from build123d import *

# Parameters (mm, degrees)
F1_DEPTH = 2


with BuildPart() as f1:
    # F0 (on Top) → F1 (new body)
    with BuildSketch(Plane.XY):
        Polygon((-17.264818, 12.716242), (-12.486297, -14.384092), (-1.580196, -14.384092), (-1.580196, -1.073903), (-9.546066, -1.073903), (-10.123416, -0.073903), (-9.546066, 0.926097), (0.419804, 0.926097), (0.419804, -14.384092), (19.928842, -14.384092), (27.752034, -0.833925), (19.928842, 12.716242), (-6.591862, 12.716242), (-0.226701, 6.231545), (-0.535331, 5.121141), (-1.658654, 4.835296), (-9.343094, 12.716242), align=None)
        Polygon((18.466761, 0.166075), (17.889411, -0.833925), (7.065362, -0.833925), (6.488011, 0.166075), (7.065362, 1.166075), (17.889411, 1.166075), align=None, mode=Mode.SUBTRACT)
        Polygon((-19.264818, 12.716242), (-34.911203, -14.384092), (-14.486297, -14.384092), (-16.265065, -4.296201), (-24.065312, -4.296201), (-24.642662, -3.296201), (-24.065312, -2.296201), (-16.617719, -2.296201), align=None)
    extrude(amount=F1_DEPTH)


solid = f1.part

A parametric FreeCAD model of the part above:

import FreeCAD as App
import Part
import Sketcher
Q = App.Units.Quantity

doc = App.newDocument("Part")
params = doc.addObject("Spreadsheet::Sheet", "Params")
for row, (alias, value) in enumerate([
    ("pad1_length", "2 mm"),
], start=1):
    params.set(f"A{row}", alias)
    params.set(f"B{row}", "=" + value)
    params.setAlias(f"B{row}", alias)

body = doc.addObject("PartDesign::Body", "Body")
body.AllowCompound = True

# Sketch on XY plane
sketch1 = body.newObject("Sketcher::SketchObject", "Sketch")
sketch1.AttachmentSupport = (doc.getObject("XY_Plane"), [""])
sketch1.MapMode = "FlatFace"
sketch1.addGeometry([
    Part.LineSegment(App.Vector(-17.3, 12.7, 0), App.Vector(-12.5, -14.4, 0)),  # 0
    Part.LineSegment(App.Vector(-12.5, -14.4, 0), App.Vector(-1.6, -14.4, 0)),  # 1
    Part.LineSegment(App.Vector(-1.6, -14.4, 0), App.Vector(-1.6, -1.1, 0)),  # 2
    Part.LineSegment(App.Vector(-1.6, -1.1, 0), App.Vector(-9.5, -1.1, 0)),  # 3
    Part.LineSegment(App.Vector(-9.5, -1.1, 0), App.Vector(-10.1, -0.1, 0)),  # 4
    Part.LineSegment(App.Vector(-10.1, -0.1, 0), App.Vector(-9.5, 0.9, 0)),  # 5
    Part.LineSegment(App.Vector(-9.5, 0.9, 0), App.Vector(0.4, 0.9, 0)),  # 6
    Part.LineSegment(App.Vector(0.4, 0.9, 0), App.Vector(0.4, -14.4, 0)),  # 7
    Part.LineSegment(App.Vector(0.4, -14.4, 0), App.Vector(19.9, -14.4, 0)),  # 8
    Part.LineSegment(App.Vector(19.9, -14.4, 0), App.Vector(27.8, -0.8, 0)),  # 9
    Part.LineSegment(App.Vector(27.8, -0.8, 0), App.Vector(19.9, 12.7, 0)),  # 10
    Part.LineSegment(App.Vector(19.9, 12.7, 0), App.Vector(-6.6, 12.7, 0)),  # 11
    Part.LineSegment(App.Vector(-6.6, 12.7, 0), App.Vector(-0.2, 6.2, 0)),  # 12
    Part.LineSegment(App.Vector(-0.2, 6.2, 0), App.Vector(-0.5, 5.1, 0)),  # 13
    Part.LineSegment(App.Vector(-0.5, 5.1, 0), App.Vector(-1.7, 4.8, 0)),  # 14
    Part.LineSegment(App.Vector(-1.7, 4.8, 0), App.Vector(-9.3, 12.7, 0)),  # 15
    Part.LineSegment(App.Vector(-9.3, 12.7, 0), App.Vector(-17.3, 12.7, 0)),  # 16
    Part.LineSegment(App.Vector(17.9, 1.2, 0), App.Vector(18.5, 0.2, 0)),  # 17
    Part.LineSegment(App.Vector(18.5, 0.2, 0), App.Vector(17.9, -0.8, 0)),  # 18
    Part.LineSegment(App.Vector(17.9, -0.8, 0), App.Vector(7.1, -0.8, 0)),  # 19
    Part.LineSegment(App.Vector(7.1, -0.8, 0), App.Vector(6.5, 0.2, 0)),  # 20
    Part.LineSegment(App.Vector(6.5, 0.2, 0), App.Vector(7.1, 1.2, 0)),  # 21
    Part.LineSegment(App.Vector(7.1, 1.2, 0), App.Vector(17.9, 1.2, 0)),  # 22
    Part.LineSegment(App.Vector(-19.3, 12.7, 0), App.Vector(-34.9, -14.4, 0)),  # 23
    Part.LineSegment(App.Vector(-34.9, -14.4, 0), App.Vector(-14.5, -14.4, 0)),  # 24
    Part.LineSegment(App.Vector(-14.5, -14.4, 0), App.Vector(-16.3, -4.3, 0)),  # 25
    Part.LineSegment(App.Vector(-16.3, -4.3, 0), App.Vector(-24.1, -4.3, 0)),  # 26
    Part.LineSegment(App.Vector(-24.1, -4.3, 0), App.Vector(-24.6, -3.3, 0)),  # 27
    Part.LineSegment(App.Vector(-24.6, -3.3, 0), App.Vector(-24.1, -2.3, 0)),  # 28
    Part.LineSegment(App.Vector(-24.1, -2.3, 0), App.Vector(-16.6, -2.3, 0)),  # 29
    Part.LineSegment(App.Vector(-16.6, -2.3, 0), App.Vector(-19.3, 12.7, 0)),  # 30
], False)
sketch1.addConstraint([
    Sketcher.Constraint("Coincident", 0, 2, 1, 1),
    Sketcher.Constraint("Coincident", 1, 2, 2, 1),
    Sketcher.Constraint("Coincident", 2, 2, 3, 1),
    Sketcher.Constraint("Coincident", 3, 2, 4, 1),
    Sketcher.Constraint("Coincident", 4, 2, 5, 1),
    Sketcher.Constraint("Coincident", 5, 2, 6, 1),
    Sketcher.Constraint("Coincident", 6, 2, 7, 1),
    Sketcher.Constraint("Coincident", 7, 2, 8, 1),
    Sketcher.Constraint("Coincident", 8, 2, 9, 1),
    Sketcher.Constraint("Coincident", 9, 2, 10, 1),
    Sketcher.Constraint("Coincident", 10, 2, 11, 1),
    Sketcher.Constraint("Coincident", 11, 2, 12, 1),
    Sketcher.Constraint("Coincident", 12, 2, 13, 1),
    Sketcher.Constraint("Coincident", 13, 2, 14, 1),
    Sketcher.Constraint("Coincident", 14, 2, 15, 1),
    Sketcher.Constraint("Coincident", 15, 2, 16, 1),
    Sketcher.Constraint("Coincident", 16, 2, 0, 1),
    Sketcher.Constraint("Coincident", 17, 2, 18, 1),
    Sketcher.Constraint("Coincident", 18, 2, 19, 1),
    Sketcher.Constraint("Coincident", 19, 2, 20, 1),
    Sketcher.Constraint("Coincident", 20, 2, 21, 1),
    Sketcher.Constraint("Coincident", 21, 2, 22, 1),
    Sketcher.Constraint("Coincident", 22, 2, 17, 1),
    Sketcher.Constraint("Coincident", 23, 2, 24, 1),
    Sketcher.Constraint("Coincident", 24, 2, 25, 1),
    Sketcher.Constraint("Coincident", 25, 2, 26, 1),
    Sketcher.Constraint("Coincident", 26, 2, 27, 1),
    Sketcher.Constraint("Coincident", 27, 2, 28, 1),
    Sketcher.Constraint("Coincident", 28, 2, 29, 1),
    Sketcher.Constraint("Coincident", 29, 2, 30, 1),
    Sketcher.Constraint("Coincident", 30, 2, 23, 1),
    Sketcher.Constraint("Horizontal", 1),
    Sketcher.Constraint("Vertical", 2),
    Sketcher.Constraint("Horizontal", 3),
    Sketcher.Constraint("Horizontal", 6),
    Sketcher.Constraint("Vertical", 7),
    Sketcher.Constraint("Horizontal", 8),
    Sketcher.Constraint("Horizontal", 11),
    Sketcher.Constraint("Horizontal", 16),
    Sketcher.Constraint("Horizontal", 19),
    Sketcher.Constraint("Horizontal", 22),
    Sketcher.Constraint("Horizontal", 24),
    Sketcher.Constraint("Horizontal", 26),
    Sketcher.Constraint("Horizontal", 29),
    Sketcher.Constraint("Parallel", 5, 9),
    Sketcher.Constraint("Parallel", 4, 10),
    Sketcher.Constraint("Parallel", 10, 17),
    Sketcher.Constraint("Parallel", 9, 18),
    Sketcher.Constraint("Parallel", 17, 20),
    Sketcher.Constraint("Parallel", 18, 21),
    Sketcher.Constraint("Parallel", 21, 23),
    Sketcher.Constraint("Parallel", 0, 25),
    Sketcher.Constraint("Parallel", 20, 27),
    Sketcher.Constraint("Parallel", 23, 28),
    Sketcher.Constraint("Parallel", 25, 30),
    Sketcher.Constraint("Horizontal", 1, 2, 7, 2),
    Sketcher.Constraint("Horizontal", 11, 2, 15, 2),
    Sketcher.Constraint("Horizontal", 9, 2, 18, 2),
    Sketcher.Constraint("Horizontal", 17, 2, 20, 2),
    Sketcher.Constraint("Horizontal", 8, 2, 23, 2),
    Sketcher.Constraint("Horizontal", 16, 2, 30, 2),
    Sketcher.Constraint("Vertical", 3, 2, 5, 2),
    Sketcher.Constraint("Vertical", 8, 2, 10, 2),
    Sketcher.Constraint("Vertical", 19, 2, 21, 2),
    Sketcher.Constraint("Vertical", 18, 2, 22, 2),
    Sketcher.Constraint("Vertical", 26, 2, 28, 2),
    Sketcher.Constraint("Equal", 5, 17),
    Sketcher.Constraint("Equal", 21, 27),
    Sketcher.Constraint("Angle", 0, Q("-79.999998 deg")),
    Sketcher.Constraint("Angle", 4, Q("119.999988 deg")),
    Sketcher.Constraint("DistanceY", 3, 2, 4, 2, 1.0),
    Sketcher.Constraint("DistanceX", 2, 2, 6, 2, 2.0),
    Sketcher.Constraint("DistanceX", 24, 2, 0, 2, 2.0),
    Sketcher.Constraint("DistanceX", 30, 2, 16, 2, 2.0),
    Sketcher.Constraint("DistanceX", 1, 1, 1, 2, 10.906101),
    Sketcher.Constraint("DistanceX", 25, 2, 3, 2, 6.718999),
    Sketcher.Constraint("Distance", 0, 27.5184),
    Sketcher.Constraint("DistanceX", 3, 2, 3, 1, 7.96587),
    Sketcher.Constraint("DistanceX", 8, 1, 8, 2, 19.509038),
    Sketcher.Constraint("DistanceX", 19, 2, 19, 1, 10.824049),
    Sketcher.Constraint("DistanceY", 2, 1, 2, 2, 13.310189),
    Sketcher.Constraint("DistanceX", 12, 2, -1, 1, 0.226701),
    Sketcher.Constraint("DistanceY", 25, 2, -1, 1, 4.296201),
    Sketcher.Constraint("DistanceY", 13, 2, 11, 2, 7.595101),
    Sketcher.Constraint("DistanceY", 6, 2, 14, 2, 3.909199),
    Sketcher.Constraint("Distance", 14, 1.159121),
    Sketcher.Constraint("DistanceX", 11, 2, 11, 1, 26.520704),
    Sketcher.Constraint("DistanceX", 16, 2, 16, 1, 7.921724),
    Sketcher.Constraint("DistanceX", 26, 2, 26, 1, 7.800247),
    Sketcher.Constraint("DistanceX", -1, 1, 8, 2, 19.928842),
    Sketcher.Constraint("DistanceX", 13, 2, -1, 1, 0.535331),
    Sketcher.Constraint("DistanceX", -1, 1, 17, 2, 18.466761),
    Sketcher.Constraint("DistanceY", 14, 2, 12, 2, 1.396249),
])
pad1 = body.newObject("PartDesign::Pad", "Pad")
pad1.Profile = sketch1
pad1.setExpression("Length", "Params.pad1_length")

doc.recompute()
